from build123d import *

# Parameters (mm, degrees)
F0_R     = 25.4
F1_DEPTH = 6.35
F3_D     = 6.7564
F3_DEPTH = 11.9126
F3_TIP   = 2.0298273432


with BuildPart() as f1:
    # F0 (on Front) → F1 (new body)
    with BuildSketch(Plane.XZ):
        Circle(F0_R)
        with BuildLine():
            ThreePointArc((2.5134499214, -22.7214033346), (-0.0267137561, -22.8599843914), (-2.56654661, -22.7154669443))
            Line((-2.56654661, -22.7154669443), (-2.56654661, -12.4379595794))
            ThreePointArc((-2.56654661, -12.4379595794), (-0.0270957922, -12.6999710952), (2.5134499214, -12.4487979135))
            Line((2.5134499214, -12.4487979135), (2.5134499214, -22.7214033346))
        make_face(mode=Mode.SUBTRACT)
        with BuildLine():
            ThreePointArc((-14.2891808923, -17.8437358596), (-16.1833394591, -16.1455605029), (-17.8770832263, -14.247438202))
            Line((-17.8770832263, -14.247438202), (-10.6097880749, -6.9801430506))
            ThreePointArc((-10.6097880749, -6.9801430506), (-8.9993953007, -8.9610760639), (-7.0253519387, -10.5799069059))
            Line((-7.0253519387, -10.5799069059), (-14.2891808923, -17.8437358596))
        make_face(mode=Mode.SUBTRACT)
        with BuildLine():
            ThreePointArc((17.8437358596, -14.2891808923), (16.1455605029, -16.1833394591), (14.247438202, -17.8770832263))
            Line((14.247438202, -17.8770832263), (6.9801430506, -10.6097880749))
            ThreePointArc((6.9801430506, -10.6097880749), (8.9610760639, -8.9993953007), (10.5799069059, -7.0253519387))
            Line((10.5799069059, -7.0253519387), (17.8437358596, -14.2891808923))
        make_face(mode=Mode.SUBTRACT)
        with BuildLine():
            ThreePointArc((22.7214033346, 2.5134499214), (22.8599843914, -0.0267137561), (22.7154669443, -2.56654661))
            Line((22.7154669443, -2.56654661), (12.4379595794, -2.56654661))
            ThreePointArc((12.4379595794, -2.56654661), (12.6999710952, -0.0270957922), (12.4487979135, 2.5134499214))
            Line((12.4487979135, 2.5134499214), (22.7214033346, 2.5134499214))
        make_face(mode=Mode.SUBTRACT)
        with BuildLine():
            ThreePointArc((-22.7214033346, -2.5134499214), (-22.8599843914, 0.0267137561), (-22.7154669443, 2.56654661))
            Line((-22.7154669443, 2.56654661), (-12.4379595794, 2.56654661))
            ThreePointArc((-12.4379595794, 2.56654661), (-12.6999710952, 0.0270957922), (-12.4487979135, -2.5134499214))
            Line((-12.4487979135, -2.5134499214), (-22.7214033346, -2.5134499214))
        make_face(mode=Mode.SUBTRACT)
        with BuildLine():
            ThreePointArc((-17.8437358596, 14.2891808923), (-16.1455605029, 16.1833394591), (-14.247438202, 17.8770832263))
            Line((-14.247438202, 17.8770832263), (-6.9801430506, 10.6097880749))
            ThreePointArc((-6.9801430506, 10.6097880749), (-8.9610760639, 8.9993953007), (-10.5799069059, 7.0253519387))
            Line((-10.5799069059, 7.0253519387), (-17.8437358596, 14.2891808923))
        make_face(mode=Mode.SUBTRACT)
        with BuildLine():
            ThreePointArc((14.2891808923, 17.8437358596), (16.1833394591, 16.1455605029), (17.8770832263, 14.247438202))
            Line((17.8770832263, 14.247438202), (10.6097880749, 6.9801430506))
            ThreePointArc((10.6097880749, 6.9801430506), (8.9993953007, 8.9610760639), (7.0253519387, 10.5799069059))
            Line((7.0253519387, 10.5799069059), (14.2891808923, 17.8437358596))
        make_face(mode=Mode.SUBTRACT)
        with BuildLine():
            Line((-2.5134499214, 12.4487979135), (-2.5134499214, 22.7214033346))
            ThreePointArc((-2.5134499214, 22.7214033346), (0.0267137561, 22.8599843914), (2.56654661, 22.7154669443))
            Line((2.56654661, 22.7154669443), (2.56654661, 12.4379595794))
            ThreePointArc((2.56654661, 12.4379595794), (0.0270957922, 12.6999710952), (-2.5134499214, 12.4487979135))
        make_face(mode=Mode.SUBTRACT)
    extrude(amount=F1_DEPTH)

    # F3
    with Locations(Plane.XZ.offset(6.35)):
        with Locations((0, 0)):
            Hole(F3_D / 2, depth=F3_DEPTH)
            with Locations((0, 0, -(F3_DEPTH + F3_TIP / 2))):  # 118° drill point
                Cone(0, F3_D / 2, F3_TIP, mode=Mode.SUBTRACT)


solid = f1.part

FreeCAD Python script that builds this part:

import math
import FreeCAD as App
import Part
import Sketcher
Q = App.Units.Quantity

doc = App.newDocument("Part")
body = doc.addObject("PartDesign::Body", "Body")

sketch1 = body.newObject("Sketcher::SketchObject", "Sketch")
sketch1.AttachmentSupport = (doc.getObject("XZ_Plane"), [""])
sketch1.MapMode = "FlatFace"
sketch1.addGeometry(Part.Circle(App.Vector(0, 0, 0), App.Vector(0, 0, 1), 25.4), False)
sketch1.addGeometry(Part.LineSegment(App.Vector(-7.025352, -10.579907, 0), App.Vector(-14.289181, -17.843736, 0)), False)
sketch1.addGeometry(Part.ArcOfCircle(Part.Circle(App.Vector(0, 0, 0), App.Vector(0, 0, 1), 22.86), math.radians(-141.446325), math.radians(-128.687585)), False)
sketch1.addGeometry(Part.LineSegment(App.Vector(-17.877083, -14.247438, 0), App.Vector(-10.609788, -6.980143, 0)), False)
sketch1.addGeometry(Part.ArcOfCircle(Part.Circle(App.Vector(0, 0, 0), App.Vector(0, 0, 1), 12.7), math.radians(-146.65922), math.radians(-123.585265)), False)
sketch1.addGeometry(Part.LineSegment(App.Vector(2.51345, -12.448798, 0), App.Vector(2.51345, -22.721403, 0)), False)
sketch1.addGeometry(Part.ArcOfCircle(Part.Circle(App.Vector(0, 0, 0), App.Vector(0, 0, 1), 22.86), math.radians(-96.446325), math.radians(-83.687585)), False)
sketch1.addGeometry(Part.LineSegment(App.Vector(-2.566547, -22.715467, 0), App.Vector(-2.566547, -12.43796, 0)), False)
sketch1.addGeometry(Part.ArcOfCircle(Part.Circle(App.Vector(0, 0, 0), App.Vector(0, 0, 1), 12.7), math.radians(-101.65922), math.radians(-78.585265)), False)
sketch1.addGeometry(Part.LineSegment(App.Vector(10.579907, -7.025352, 0), App.Vector(17.843736, -14.289181, 0)), False)
sketch1.addGeometry(Part.ArcOfCircle(Part.Circle(App.Vector(0, 0, 0), App.Vector(0, 0, 1), 22.86), math.radians(-51.446325), math.radians(-38.687585)), False)
sketch1.addGeometry(Part.LineSegment(App.Vector(14.247438, -17.877083, 0), App.Vector(6.980143, -10.609788, 0)), False)
sketch1.addGeometry(Part.ArcOfCircle(Part.Circle(App.Vector(0, 0, 0), App.Vector(0, 0, 1), 12.7), math.radians(-56.65922), math.radians(-33.585265)), False)
sketch1.addGeometry(Part.LineSegment(App.Vector(12.448798, 2.51345, 0), App.Vector(22.721403, 2.51345, 0)), False)
sketch1.addGeometry(Part.ArcOfCircle(Part.Circle(App.Vector(0, 0, 0), App.Vector(0, 0, 1), 22.86), math.radians(-6.446325), math.radians(6.312415)), False)
sketch1.addGeometry(Part.LineSegment(App.Vector(22.715467, -2.566547, 0), App.Vector(12.43796, -2.566547, 0)), False)
sketch1.addGeometry(Part.ArcOfCircle(Part.Circle(App.Vector(0, 0, 0), App.Vector(0, 0, 1), 12.7), math.radians(-11.65922), math.radians(11.414735)), False)
sketch1.addGeometry(Part.LineSegment(App.Vector(-12.448798, -2.51345, 0), App.Vector(-22.721403, -2.51345, 0)), False)
sketch1.addGeometry(Part.ArcOfCircle(Part.Circle(App.Vector(0, 0, 0), App.Vector(0, 0, 1), 22.86), math.radians(173.553675), math.radians(186.312415)), False)
sketch1.addGeometry(Part.LineSegment(App.Vector(-22.715467, 2.566547, 0), App.Vector(-12.43796, 2.566547, 0)), False)
sketch1.addGeometry(Part.ArcOfCircle(Part.Circle(App.Vector(0, 0, 0), App.Vector(0, 0, 1), 12.7), math.radians(168.34078), math.radians(191.414735)), False)
sketch1.addGeometry(Part.LineSegment(App.Vector(-10.579907, 7.025352, 0), App.Vector(-17.843736, 14.289181, 0)), False)
sketch1.addGeometry(Part.ArcOfCircle(Part.Circle(App.Vector(0, 0, 0), App.Vector(0, 0, 1), 22.86), math.radians(128.553675), math.radians(141.312415)), False)
sketch1.addGeometry(Part.LineSegment(App.Vector(-14.247438, 17.877083, 0), App.Vector(-6.980143, 10.609788, 0)), False)
sketch1.addGeometry(Part.ArcOfCircle(Part.Circle(App.Vector(0, 0, 0), App.Vector(0, 0, 1), 12.7), math.radians(123.34078), math.radians(146.414735)), False)
sketch1.addGeometry(Part.ArcOfCircle(Part.Circle(App.Vector(0, 0, 0), App.Vector(0, 0, 1), 12.7), math.radians(78.34078), math.radians(101.414735)), False)
sketch1.addGeometry(Part.LineSegment(App.Vector(-2.51345, 12.448798, 0), App.Vector(-2.51345, 22.721403, 0)), False)
sketch1.addGeometry(Part.ArcOfCircle(Part.Circle(App.Vector(0, 0, 0), App.Vector(0, 0, 1), 22.86), math.radians(83.553675), math.radians(96.312415)), False)
sketch1.addGeometry(Part.LineSegment(App.Vector(2.566547, 22.715467, 0), App.Vector(2.566547, 12.43796, 0)), False)
sketch1.addGeometry(Part.LineSegment(App.Vector(7.025352, 10.579907, 0), App.Vector(14.289181, 17.843736, 0)), False)
sketch1.addGeometry(Part.ArcOfCircle(Part.Circle(App.Vector(0, 0, 0), App.Vector(0, 0, 1), 22.86), math.radians(38.553675), math.radians(51.312415)), False)
sketch1.addGeometry(Part.LineSegment(App.Vector(17.877083, 14.247438, 0), App.Vector(10.609788, 6.980143, 0)), False)
sketch1.addGeometry(Part.ArcOfCircle(Part.Circle(App.Vector(0, 0, 0), App.Vector(0, 0, 1), 12.7), math.radians(33.34078), math.radians(56.414735)), False)
sketch1.addConstraint(Sketcher.Constraint("Coincident", 1, 2, 2, 2))
sketch1.addConstraint(Sketcher.Constraint("Coincident", 2, 1, 3, 1))
sketch1.addConstraint(Sketcher.Constraint("Coincident", 3, 2, 4, 1))
sketch1.addConstraint(Sketcher.Constraint("Coincident", 4, 2, 1, 1))
sketch1.addConstraint(Sketcher.Constraint("Coincident", 5, 2, 6, 2))
sketch1.addConstraint(Sketcher.Constraint("Coincident", 6, 1, 7, 1))
sketch1.addConstraint(Sketcher.Constraint("Coincident", 7, 2, 8, 1))
sketch1.addConstraint(Sketcher.Constraint("Coincident", 8, 2, 5, 1))
sketch1.addConstraint(Sketcher.Constraint("Coincident", 9, 2, 10, 2))
sketch1.addConstraint(Sketcher.Constraint("Coincident", 10, 1, 11, 1))
sketch1.addConstraint(Sketcher.Constraint("Coincident", 11, 2, 12, 1))
sketch1.addConstraint(Sketcher.Constraint("Coincident", 12, 2, 9, 1))
sketch1.addConstraint(Sketcher.Constraint("Coincident", 13, 2, 14, 2))
sketch1.addConstraint(Sketcher.Constraint("Coincident", 14, 1, 15, 1))
sketch1.addConstraint(Sketcher.Constraint("Coincident", 15, 2, 16, 1))
sketch1.addConstraint(Sketcher.Constraint("Coincident", 16, 2, 13, 1))
sketch1.addConstraint(Sketcher.Constraint("Coincident", 17, 2, 18, 2))
sketch1.addConstraint(Sketcher.Constraint("Coincident", 18, 1, 19, 1))
sketch1.addConstraint(Sketcher.Constraint("Coincident", 19, 2, 20, 1))
sketch1.addConstraint(Sketcher.Constraint("Coincident", 20, 2, 17, 1))
sketch1.addConstraint(Sketcher.Constraint("Coincident", 21, 2, 22, 2))
sketch1.addConstraint(Sketcher.Constraint("Coincident", 22, 1, 23, 1))
sketch1.addConstraint(Sketcher.Constraint("Coincident", 23, 2, 24, 1))
sketch1.addConstraint(Sketcher.Constraint("Coincident", 24, 2, 21, 1))
sketch1.addConstraint(Sketcher.Constraint("Coincident", 25, 2, 26, 1))
sketch1.addConstraint(Sketcher.Constraint("Coincident", 26, 2, 27, 2))
sketch1.addConstraint(Sketcher.Constraint("Coincident", 27, 1, 28, 1))
sketch1.addConstraint(Sketcher.Constraint("Coincident", 28, 2, 25, 1))
sketch1.addConstraint(Sketcher.Constraint("Coincident", 29, 2, 30, 2))
sketch1.addConstraint(Sketcher.Constraint("Coincident", 30, 1, 31, 1))
sketch1.addConstraint(Sketcher.Constraint("Coincident", 31, 2, 32, 1))
sketch1.addConstraint(Sketcher.Constraint("Coincident", 32, 2, 29, 1))
sketch1.addConstraint(Sketcher.Constraint("Vertical", 5))
sketch1.addConstraint(Sketcher.Constraint("Vertical", 7))
sketch1.addConstraint(Sketcher.Constraint("Horizontal", 13))
sketch1.addConstraint(Sketcher.Constraint("Horizontal", 15))
sketch1.addConstraint(Sketcher.Constraint("Horizontal", 17))
sketch1.addConstraint(Sketcher.Constraint("Horizontal", 19))
sketch1.addConstraint(Sketcher.Constraint("Vertical", 26))
sketch1.addConstraint(Sketcher.Constraint("Vertical", 28))
sketch1.addConstraint(Sketcher.Constraint("Coincident", 0, 3, -1, 1))
sketch1.addConstraint(Sketcher.Constraint("Coincident", 2, 3, -1, 1))
sketch1.addConstraint(Sketcher.Constraint("Coincident", 4, 3, -1, 1))
sketch1.addConstraint(Sketcher.Constraint("Coincident", 6, 3, -1, 1))
sketch1.addConstraint(Sketcher.Constraint("Coincident", 8, 3, -1, 1))
sketch1.addConstraint(Sketcher.Constraint("Coincident", 10, 3, -1, 1))
sketch1.addConstraint(Sketcher.Constraint("Coincident", 12, 3, -1, 1))
sketch1.addConstraint(Sketcher.Constraint("Coincident", 14, 3, -1, 1))
sketch1.addConstraint(Sketcher.Constraint("Coincident", 16, 3, -1, 1))
sketch1.addConstraint(Sketcher.Constraint("Coincident", 18, 3, -1, 1))
sketch1.addConstraint(Sketcher.Constraint("Coincident", 20, 3, -1, 1))
sketch1.addConstraint(Sketcher.Constraint("Coincident", 22, 3, -1, 1))
sketch1.addConstraint(Sketcher.Constraint("Coincident", 24, 3, -1, 1))
sketch1.addConstraint(Sketcher.Constraint("Coincident", 25, 3, -1, 1))
sketch1.addConstraint(Sketcher.Constraint("Coincident", 27, 3, -1, 1))
sketch1.addConstraint(Sketcher.Constraint("Coincident", 30, 3, -1, 1))
sketch1.addConstraint(Sketcher.Constraint("Coincident", 32, 3, -1, 1))
sketch1.addConstraint(Sketcher.Constraint("Equal", 2, 6))
sketch1.addConstraint(Sketcher.Constraint("Equal", 4, 8))
sketch1.addConstraint(Sketcher.Constraint("Equal", 6, 10))
sketch1.addConstraint(Sketcher.Constraint("Equal", 8, 12))
sketch1.addConstraint(Sketcher.Constraint("Equal", 10, 14))
sketch1.addConstraint(Sketcher.Constraint("Equal", 12, 16))
sketch1.addConstraint(Sketcher.Constraint("Equal", 14, 18))
sketch1.addConstraint(Sketcher.Constraint("Equal", 16, 20))
sketch1.addConstraint(Sketcher.Constraint("Equal", 18, 22))
sketch1.addConstraint(Sketcher.Constraint("Equal", 20, 24))
sketch1.addConstraint(Sketcher.Constraint("Equal", 24, 25))
sketch1.addConstraint(Sketcher.Constraint("Equal", 22, 27))
sketch1.addConstraint(Sketcher.Constraint("Equal", 27, 30))
sketch1.addConstraint(Sketcher.Constraint("Equal", 25, 32))
sketch1.addConstraint(Sketcher.Constraint("Parallel", 1, 3))
sketch1.addConstraint(Sketcher.Constraint("Perpendicular", 3, 9))
sketch1.addConstraint(Sketcher.Constraint("Parallel", 9, 11))
sketch1.addConstraint(Sketcher.Constraint("Parallel", 11, 21))
sketch1.addConstraint(Sketcher.Constraint("Parallel", 21, 23))
sketch1.addConstraint(Sketcher.Constraint("Perpendicular", 23, 29))
sketch1.addConstraint(Sketcher.Constraint("Parallel", 29, 31))
sketch1.addConstraint(Sketcher.Constraint("Equal", 13, 17))
sketch1.addConstraint(Sketcher.Constraint("Equal", 15, 19))
sketch1.addConstraint(Sketcher.Constraint("Equal", 17, 5))
sketch1.addConstraint(Sketcher.Constraint("Equal", 19, 7))
sketch1.addConstraint(Sketcher.Constraint("Equal", 5, 26))
sketch1.addConstraint(Sketcher.Constraint("Equal", 7, 28))
sketch1.addConstraint(Sketcher.Constraint("Equal", 1, 9))
sketch1.addConstraint(Sketcher.Constraint("Equal", 3, 11))
sketch1.addConstraint(Sketcher.Constraint("Equal", 9, 21))
sketch1.addConstraint(Sketcher.Constraint("Equal", 11, 23))
sketch1.addConstraint(Sketcher.Constraint("Equal", 21, 29))
sketch1.addConstraint(Sketcher.Constraint("Equal", 23, 31))
sketch1.addConstraint(Sketcher.Constraint("Diameter", 0, Q("2 in")))
sketch1.addConstraint(Sketcher.Constraint("Radius", 2, Q("0.9 in")))
sketch1.addConstraint(Sketcher.Constraint("Radius", 4, Q("0.5 in")))
sketch1.addConstraint(Sketcher.Constraint("Angle", 1, Q("-135 deg")))
sketch1.addConstraint(Sketcher.Constraint("DistanceX", 6, 1, 5, 2, Q("0.1999999 in")))
sketch1.addConstraint(Sketcher.Constraint("DistanceX", 4, 2, 5, 2, 9.538802))
sketch1.addConstraint(Sketcher.Constraint("DistanceX", 13, 1, 13, 2, 10.272605))
sketch1.addConstraint(Sketcher.Constraint("DistanceY", 2, 1, -1, 1, 14.247438))
pad1 = body.newObject("PartDesign::Pad", "Pad")
pad1.Profile = sketch1
pad1.Length = Q("0.25 in")

sketch2 = body.newObject("Sketcher::SketchObject", "Sketch001")
sketch2.AttachmentSupport = (doc.getObject("XZ_Plane"), [""])
sketch2.MapMode = "FlatFace"
sketch2.AttachmentOffset = App.Placement(App.Vector(0, 0, 0.25 * 25.4), App.Rotation())
sketch2.addGeometry(Part.Circle(App.Vector(0, 0, 0), App.Vector(0, 0, 1), 3.3782), False)
sketch2.addConstraint(Sketcher.Constraint("Coincident", 0, 3, -1, 1))
sketch2.addConstraint(Sketcher.Constraint("Diameter", 0, Q("0.266 in")))
doc.recompute()
hole = body.newObject("PartDesign::Hole", "Hole")
hole.Profile = sketch2
hole.ThreadType = "None"
hole.Diameter = Q("0.266 in")
hole.DepthType = "Dimension"
hole.Depth = Q("0.469 in")
hole.DrillPoint = "Angled"
hole.DrillPointAngle = 118

doc.recompute()
